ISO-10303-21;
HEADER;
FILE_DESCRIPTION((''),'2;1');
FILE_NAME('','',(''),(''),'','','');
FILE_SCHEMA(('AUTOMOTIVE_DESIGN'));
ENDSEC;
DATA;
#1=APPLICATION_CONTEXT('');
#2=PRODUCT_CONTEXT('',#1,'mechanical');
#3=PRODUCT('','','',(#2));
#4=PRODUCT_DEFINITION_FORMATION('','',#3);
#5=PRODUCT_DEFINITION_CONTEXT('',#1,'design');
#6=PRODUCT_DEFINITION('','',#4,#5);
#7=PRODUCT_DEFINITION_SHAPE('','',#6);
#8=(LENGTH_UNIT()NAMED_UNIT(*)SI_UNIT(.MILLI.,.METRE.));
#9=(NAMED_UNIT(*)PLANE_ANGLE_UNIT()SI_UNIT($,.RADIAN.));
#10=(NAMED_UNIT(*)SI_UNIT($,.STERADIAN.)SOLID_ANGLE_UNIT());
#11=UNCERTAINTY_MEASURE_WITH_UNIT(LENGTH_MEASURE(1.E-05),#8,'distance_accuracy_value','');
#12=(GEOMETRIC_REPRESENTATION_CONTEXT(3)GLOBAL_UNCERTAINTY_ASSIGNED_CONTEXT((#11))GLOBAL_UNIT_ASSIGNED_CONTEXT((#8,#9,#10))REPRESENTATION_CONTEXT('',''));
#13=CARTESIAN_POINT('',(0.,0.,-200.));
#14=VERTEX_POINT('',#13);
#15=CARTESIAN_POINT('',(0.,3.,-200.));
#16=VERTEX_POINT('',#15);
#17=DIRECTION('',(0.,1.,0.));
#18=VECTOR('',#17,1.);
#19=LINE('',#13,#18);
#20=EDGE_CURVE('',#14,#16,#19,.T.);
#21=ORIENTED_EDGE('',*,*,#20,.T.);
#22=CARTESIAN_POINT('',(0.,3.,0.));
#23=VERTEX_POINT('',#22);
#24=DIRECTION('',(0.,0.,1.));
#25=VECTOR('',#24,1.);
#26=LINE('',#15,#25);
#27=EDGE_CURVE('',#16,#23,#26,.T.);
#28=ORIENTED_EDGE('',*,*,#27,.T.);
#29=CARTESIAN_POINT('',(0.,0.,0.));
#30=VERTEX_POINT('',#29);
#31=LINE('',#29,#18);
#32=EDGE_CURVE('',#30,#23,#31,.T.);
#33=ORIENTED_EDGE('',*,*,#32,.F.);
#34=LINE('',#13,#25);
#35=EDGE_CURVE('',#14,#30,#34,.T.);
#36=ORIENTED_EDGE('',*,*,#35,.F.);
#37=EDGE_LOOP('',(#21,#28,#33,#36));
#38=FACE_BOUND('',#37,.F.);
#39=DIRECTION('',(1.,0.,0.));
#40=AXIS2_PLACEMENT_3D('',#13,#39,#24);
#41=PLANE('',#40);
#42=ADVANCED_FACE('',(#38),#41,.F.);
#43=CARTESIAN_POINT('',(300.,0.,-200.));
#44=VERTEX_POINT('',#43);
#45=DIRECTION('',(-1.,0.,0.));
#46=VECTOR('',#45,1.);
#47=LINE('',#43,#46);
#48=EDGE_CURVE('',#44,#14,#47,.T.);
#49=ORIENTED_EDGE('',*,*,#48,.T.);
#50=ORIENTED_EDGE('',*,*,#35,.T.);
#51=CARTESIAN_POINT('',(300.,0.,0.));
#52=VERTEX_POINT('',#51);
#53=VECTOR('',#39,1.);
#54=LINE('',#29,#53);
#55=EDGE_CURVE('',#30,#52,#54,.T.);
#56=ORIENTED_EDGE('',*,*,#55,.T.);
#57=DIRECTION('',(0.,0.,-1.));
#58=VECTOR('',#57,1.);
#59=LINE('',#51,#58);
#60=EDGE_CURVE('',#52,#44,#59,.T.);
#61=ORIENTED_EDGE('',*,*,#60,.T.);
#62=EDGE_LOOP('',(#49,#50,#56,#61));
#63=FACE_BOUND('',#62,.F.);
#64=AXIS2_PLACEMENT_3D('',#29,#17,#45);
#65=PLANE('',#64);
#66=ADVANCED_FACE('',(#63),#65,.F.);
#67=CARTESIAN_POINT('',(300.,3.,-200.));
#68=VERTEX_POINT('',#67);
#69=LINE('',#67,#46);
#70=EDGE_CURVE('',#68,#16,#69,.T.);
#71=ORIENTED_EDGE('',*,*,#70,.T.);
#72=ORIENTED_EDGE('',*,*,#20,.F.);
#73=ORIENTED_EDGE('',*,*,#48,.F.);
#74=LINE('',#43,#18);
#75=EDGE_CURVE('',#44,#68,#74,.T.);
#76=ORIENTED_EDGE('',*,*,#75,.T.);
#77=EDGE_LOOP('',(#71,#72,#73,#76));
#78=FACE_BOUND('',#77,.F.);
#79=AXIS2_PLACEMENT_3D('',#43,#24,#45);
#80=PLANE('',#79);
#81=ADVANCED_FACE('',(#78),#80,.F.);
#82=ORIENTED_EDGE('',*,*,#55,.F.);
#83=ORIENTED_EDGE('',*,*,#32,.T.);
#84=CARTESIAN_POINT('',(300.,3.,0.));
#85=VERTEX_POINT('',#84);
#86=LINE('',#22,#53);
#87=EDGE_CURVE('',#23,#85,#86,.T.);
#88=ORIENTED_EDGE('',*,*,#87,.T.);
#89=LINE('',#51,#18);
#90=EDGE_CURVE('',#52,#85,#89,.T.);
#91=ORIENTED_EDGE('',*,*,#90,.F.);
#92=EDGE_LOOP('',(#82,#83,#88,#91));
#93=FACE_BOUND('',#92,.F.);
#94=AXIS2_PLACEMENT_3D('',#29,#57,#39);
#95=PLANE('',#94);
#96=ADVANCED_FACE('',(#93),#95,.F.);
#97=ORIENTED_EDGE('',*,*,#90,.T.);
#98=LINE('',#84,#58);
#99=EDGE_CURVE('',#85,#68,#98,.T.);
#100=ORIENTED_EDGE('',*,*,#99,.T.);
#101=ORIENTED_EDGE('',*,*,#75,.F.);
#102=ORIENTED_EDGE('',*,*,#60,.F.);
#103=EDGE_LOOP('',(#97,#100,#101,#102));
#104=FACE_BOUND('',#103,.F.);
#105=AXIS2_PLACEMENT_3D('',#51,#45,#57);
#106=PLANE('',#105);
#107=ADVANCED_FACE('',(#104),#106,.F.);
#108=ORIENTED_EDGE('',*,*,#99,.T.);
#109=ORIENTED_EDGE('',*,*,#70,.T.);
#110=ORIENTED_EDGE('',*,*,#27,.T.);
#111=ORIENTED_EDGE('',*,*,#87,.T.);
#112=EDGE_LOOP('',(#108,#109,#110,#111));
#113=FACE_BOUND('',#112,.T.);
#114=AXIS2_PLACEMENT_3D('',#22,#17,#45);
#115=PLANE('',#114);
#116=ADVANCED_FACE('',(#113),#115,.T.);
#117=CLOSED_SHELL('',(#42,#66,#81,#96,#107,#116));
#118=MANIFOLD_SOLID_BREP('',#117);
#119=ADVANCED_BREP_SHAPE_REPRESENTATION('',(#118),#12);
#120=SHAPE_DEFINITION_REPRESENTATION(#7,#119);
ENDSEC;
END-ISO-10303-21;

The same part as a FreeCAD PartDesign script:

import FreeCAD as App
import Part
import Sketcher

doc = App.newDocument("Part")
body = doc.addObject("PartDesign::Body", "Body")

# Sketch on XZ plane
sketch1 = doc.addObject("Sketcher::SketchObject", "Sketch")
body.addObject(sketch1)
sketch1.AttachmentSupport = (doc.XZ_Plane, [""])
sketch1.MapMode = "FlatFace"
sketch1.addGeometry([
    Part.LineSegment(App.Vector(0, -200, 0), App.Vector(0, 0, 0)),
    Part.LineSegment(App.Vector(0, 0, 0), App.Vector(300, 0, 0)),
    Part.LineSegment(App.Vector(300, 0, 0), App.Vector(300, -200, 0)),
    Part.LineSegment(App.Vector(300, -200, 0), App.Vector(0, -200, 0)),
], False)
sketch1.addConstraint([
    Sketcher.Constraint("Coincident", 0, 2, 1, 1),
    Sketcher.Constraint("Coincident", 1, 2, 2, 1),
    Sketcher.Constraint("Coincident", 2, 2, 3, 1),
    Sketcher.Constraint("Coincident", 3, 2, 0, 1),
    Sketcher.Constraint("Vertical", 0),
    Sketcher.Constraint("Horizontal", 1),
    Sketcher.Constraint("Vertical", 2),
    Sketcher.Constraint("Horizontal", 3),
    Sketcher.Constraint("Coincident", 0, 2, -1, 1),
    Sketcher.Constraint("DistanceX", 1, 1, 1, 2, 300.0),
    Sketcher.Constraint("DistanceY", 0, 1, 0, 2, 200.0),
])
pad1 = doc.addObject("PartDesign::Pad", "Pad")
body.addObject(pad1)
pad1.Profile = sketch1
pad1.Length = 3
pad1.Reversed = True

doc.recompute()
